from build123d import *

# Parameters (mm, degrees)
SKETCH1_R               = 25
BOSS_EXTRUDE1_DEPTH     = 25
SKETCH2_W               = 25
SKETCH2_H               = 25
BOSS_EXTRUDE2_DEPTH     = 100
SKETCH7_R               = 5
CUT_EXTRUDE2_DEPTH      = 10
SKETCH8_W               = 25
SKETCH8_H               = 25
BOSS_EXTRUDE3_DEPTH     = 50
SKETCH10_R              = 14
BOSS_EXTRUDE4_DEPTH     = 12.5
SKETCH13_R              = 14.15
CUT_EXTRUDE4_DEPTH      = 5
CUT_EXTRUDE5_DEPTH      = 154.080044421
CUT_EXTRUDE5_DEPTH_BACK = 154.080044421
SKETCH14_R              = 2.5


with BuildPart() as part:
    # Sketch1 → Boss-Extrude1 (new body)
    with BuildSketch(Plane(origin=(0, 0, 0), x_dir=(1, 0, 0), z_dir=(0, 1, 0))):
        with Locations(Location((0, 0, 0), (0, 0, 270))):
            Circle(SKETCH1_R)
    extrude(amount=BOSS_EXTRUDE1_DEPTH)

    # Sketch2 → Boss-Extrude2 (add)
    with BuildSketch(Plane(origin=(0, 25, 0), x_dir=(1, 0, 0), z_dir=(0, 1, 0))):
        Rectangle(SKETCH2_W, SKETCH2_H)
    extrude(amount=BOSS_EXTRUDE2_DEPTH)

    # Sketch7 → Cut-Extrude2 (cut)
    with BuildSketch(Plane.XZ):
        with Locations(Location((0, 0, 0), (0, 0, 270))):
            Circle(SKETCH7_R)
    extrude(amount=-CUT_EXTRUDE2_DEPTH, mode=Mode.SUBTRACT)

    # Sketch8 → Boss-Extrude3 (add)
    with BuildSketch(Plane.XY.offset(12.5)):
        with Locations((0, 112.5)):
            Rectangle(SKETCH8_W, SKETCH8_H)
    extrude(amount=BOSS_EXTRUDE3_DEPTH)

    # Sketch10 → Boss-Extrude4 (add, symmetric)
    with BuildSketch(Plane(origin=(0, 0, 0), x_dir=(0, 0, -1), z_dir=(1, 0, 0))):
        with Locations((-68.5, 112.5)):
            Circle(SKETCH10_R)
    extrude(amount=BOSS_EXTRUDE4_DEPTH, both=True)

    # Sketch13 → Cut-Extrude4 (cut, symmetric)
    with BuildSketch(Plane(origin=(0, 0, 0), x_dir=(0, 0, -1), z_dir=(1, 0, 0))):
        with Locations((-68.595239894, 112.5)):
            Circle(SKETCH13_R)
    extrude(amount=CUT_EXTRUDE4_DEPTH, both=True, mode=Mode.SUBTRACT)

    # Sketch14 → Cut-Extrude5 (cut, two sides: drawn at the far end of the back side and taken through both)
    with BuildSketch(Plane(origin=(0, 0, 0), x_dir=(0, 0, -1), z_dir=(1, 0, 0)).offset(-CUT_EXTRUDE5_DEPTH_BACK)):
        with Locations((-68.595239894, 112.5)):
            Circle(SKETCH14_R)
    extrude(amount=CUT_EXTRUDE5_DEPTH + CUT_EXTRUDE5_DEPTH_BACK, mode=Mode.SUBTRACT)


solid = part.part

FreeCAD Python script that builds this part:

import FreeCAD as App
import Part
import Sketcher

V = App.Vector


def add_polygon(sketch, points):
    """Adds a closed chain of lines whose ends are joined by coincident constraints."""
    first, n = sketch.GeometryCount, len(points)
    for a, b in zip(points, points[1:] + points[:1]):
        sketch.addGeometry(Part.LineSegment(App.Vector(*a, 0), App.Vector(*b, 0)), False)
    for i in range(n):
        sketch.addConstraint(Sketcher.Constraint("Coincident", first + i, 2, first + (i + 1) % n, 1))

doc = App.newDocument("Part")
body = doc.addObject("PartDesign::Body", "Body")

# Sketch on XZ plane
sketch1 = body.newObject("Sketcher::SketchObject", "Sketch")
sketch1.AttachmentSupport = (doc.getObject("XZ_Plane"), [""])
sketch1.MapMode = "FlatFace"
sketch1.addGeometry(Part.Circle(V(0, 0, 0), V(0, 0, 1), 25), False)
sketch1.addConstraint(Sketcher.Constraint("Coincident", 0, 3, -1, 1))
sketch1.addConstraint(Sketcher.Constraint("Diameter", 0, 50.0))
pad1 = body.newObject("PartDesign::Pad", "Pad")
pad1.Profile = sketch1
pad1.Length = 25
pad1.Reversed = True

# Sketch on XZ plane
sketch2 = body.newObject("Sketcher::SketchObject", "Sketch001")
sketch2.AttachmentSupport = (doc.getObject("XZ_Plane"), [""])
sketch2.MapMode = "FlatFace"
sketch2.AttachmentOffset = App.Placement(V(0, 0, -25), App.Rotation())
add_polygon(sketch2, [(-12, -12), (-12, 12), (12, 12), (12, -12)])  # lines 0-3
sketch2.addConstraint(Sketcher.Constraint("Vertical", 0))
sketch2.addConstraint(Sketcher.Constraint("Horizontal", 1))
sketch2.addConstraint(Sketcher.Constraint("Vertical", 2))
sketch2.addConstraint(Sketcher.Constraint("Horizontal", 3))
sketch2.addConstraint(Sketcher.Constraint("Symmetric", 0, 2, 2, 2, -1, 1))
sketch2.addConstraint(Sketcher.Constraint("Equal", 3, 0))
sketch2.addConstraint(Sketcher.Constraint("DistanceX", 1, 1, 1, 2, 25.0))
pad2 = body.newObject("PartDesign::Pad", "Pad001")
pad2.Profile = sketch2
pad2.Length = 100
pad2.Reversed = True

# Sketch on XZ plane
sketch3 = body.newObject("Sketcher::SketchObject", "Sketch002")
sketch3.AttachmentSupport = (doc.getObject("XZ_Plane"), [""])
sketch3.MapMode = "FlatFace"
sketch3.addGeometry(Part.Circle(V(0, 0, 0), V(0, 0, 1), 5), False)
sketch3.addConstraint(Sketcher.Constraint("Coincident", 0, 3, -1, 1))
sketch3.addConstraint(Sketcher.Constraint("Diameter", 0, 10.0))
pocket1 = body.newObject("PartDesign::Pocket", "Pocket")
pocket1.Profile = sketch3
pocket1.Length = 10

# Sketch on XY plane
sketch4 = body.newObject("Sketcher::SketchObject", "Sketch003")
sketch4.AttachmentSupport = (doc.getObject("XY_Plane"), [""])
sketch4.MapMode = "FlatFace"
sketch4.AttachmentOffset = App.Placement(V(0, 0, 12.5), App.Rotation())
add_polygon(sketch4, [(-12, 125), (-12, 100), (12, 100), (12, 125)])  # lines 0-3
sketch4.addConstraint(Sketcher.Constraint("Vertical", 0))
sketch4.addConstraint(Sketcher.Constraint("Horizontal", 1))
sketch4.addConstraint(Sketcher.Constraint("Vertical", 2))
sketch4.addConstraint(Sketcher.Constraint("Horizontal", 3))
sketch4.addConstraint(Sketcher.Constraint("Equal", 3, 0))
sketch4.addConstraint(Sketcher.Constraint("DistanceX", 1, 1, 1, 2, 25.0))
sketch4.addConstraint(Sketcher.Constraint("DistanceY", -1, 1, 0, 2, 100.0))
sketch4.addConstraint(Sketcher.Constraint("DistanceX", 0, 2, -1, 1, 12.5))
pad3 = body.newObject("PartDesign::Pad", "Pad002")
pad3.Profile = sketch4
pad3.Length = 50

# Sketch on YZ plane
sketch5 = body.newObject("Sketcher::SketchObject", "Sketch004")
sketch5.AttachmentSupport = (doc.getObject("YZ_Plane"), [""])
sketch5.MapMode = "FlatFace"
sketch5.addGeometry(Part.Circle(V(112, 68, 0), V(0, 0, 1), 14), False)
sketch5.addConstraint(Sketcher.Constraint("Diameter", 0, 28.0))
sketch5.addConstraint(Sketcher.Constraint("DistanceX", -1, 1, 0, 3, 112.5))
sketch5.addConstraint(Sketcher.Constraint("DistanceY", -1, 1, 0, 3, 68.5))
pad4 = body.newObject("PartDesign::Pad", "Pad003")
pad4.Profile = sketch5
pad4.Length = 25
pad4.Midplane = True

# Sketch on YZ plane
sketch6 = body.newObject("Sketcher::SketchObject", "Sketch005")
sketch6.AttachmentSupport = (doc.getObject("YZ_Plane"), [""])
sketch6.MapMode = "FlatFace"
sketch6.addGeometry(Part.Circle(V(112, 69, 0), V(0, 0, 1), 14), False)
sketch6.addConstraint(Sketcher.Constraint("Diameter", 0, 28.3))
sketch6.addConstraint(Sketcher.Constraint("DistanceX", -1, 1, 0, 3, 112.5))
sketch6.addConstraint(Sketcher.Constraint("DistanceY", -1, 1, 0, 3, 68.59524))
pocket2 = body.newObject("PartDesign::Pocket", "Pocket001")
pocket2.Profile = sketch6
pocket2.Length = 10
pocket2.Midplane = True

# Sketch on YZ plane
sketch7 = body.newObject("Sketcher::SketchObject", "Sketch006")
sketch7.AttachmentSupport = (doc.getObject("YZ_Plane"), [""])
sketch7.MapMode = "FlatFace"
sketch7.addGeometry(Part.Circle(V(112.5, 68.6, 0), V(0, 0, 1), 2.5), False)
sketch7.addConstraint(Sketcher.Constraint("Diameter", 0, 5.0))
sketch7.addConstraint(Sketcher.Constraint("DistanceX", -1, 1, 0, 3, 112.5))
sketch7.addConstraint(Sketcher.Constraint("DistanceY", -1, 1, 0, 3, 68.59524))
pocket3 = body.newObject("PartDesign::Pocket", "Pocket002")
pocket3.Profile = sketch7
pocket3.Type = "ThroughAll"
pocket3.Midplane = True

doc.recompute()
